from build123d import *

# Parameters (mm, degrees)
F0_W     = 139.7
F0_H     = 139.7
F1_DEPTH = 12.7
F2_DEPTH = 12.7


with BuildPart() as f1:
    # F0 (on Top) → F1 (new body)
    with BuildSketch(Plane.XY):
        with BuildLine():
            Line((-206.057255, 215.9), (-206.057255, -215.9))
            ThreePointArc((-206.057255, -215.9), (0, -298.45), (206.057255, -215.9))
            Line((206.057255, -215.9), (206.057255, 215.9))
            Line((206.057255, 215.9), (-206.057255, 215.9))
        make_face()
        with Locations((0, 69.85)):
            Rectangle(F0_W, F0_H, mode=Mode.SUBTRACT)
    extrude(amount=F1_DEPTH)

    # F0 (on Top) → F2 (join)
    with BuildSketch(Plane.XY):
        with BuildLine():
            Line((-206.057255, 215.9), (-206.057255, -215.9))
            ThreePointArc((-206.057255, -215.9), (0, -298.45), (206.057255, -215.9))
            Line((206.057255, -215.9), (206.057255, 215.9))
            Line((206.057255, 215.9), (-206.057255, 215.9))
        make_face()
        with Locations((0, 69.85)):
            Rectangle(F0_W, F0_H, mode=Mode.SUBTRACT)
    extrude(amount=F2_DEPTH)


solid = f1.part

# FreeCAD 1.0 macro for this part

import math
import FreeCAD as App
import Part
import Sketcher

V = App.Vector
Q = App.Units.Quantity


def add_polygon(sketch, points):
    """Adds a closed chain of lines whose ends are joined by coincident constraints."""
    first, n = sketch.GeometryCount, len(points)
    for a, b in zip(points, points[1:] + points[:1]):
        sketch.addGeometry(Part.LineSegment(App.Vector(*a, 0), App.Vector(*b, 0)), False)
    for i in range(n):
        sketch.addConstraint(Sketcher.Constraint("Coincident", first + i, 2, first + (i + 1) % n, 1))

doc = App.newDocument("Part")
body = doc.addObject("PartDesign::Body", "Body")

# Sketch on XY plane
sketch1 = doc.addObject("Sketcher::SketchObject", "Sketch")
body.addObject(sketch1)
sketch1.AttachmentSupport = (doc.XY_Plane, [""])
sketch1.MapMode = "FlatFace"
sketch1.addGeometry(Part.LineSegment(V(-206, 216, 0), V(-206, -216, 0)), False)  # 0
sketch1.addGeometry(Part.ArcOfCircle(Part.Circle(V(0, 0, 0), V(0, 0, 1), 298), math.radians(-134), math.radians(-46)), False)  # 1
sketch1.addGeometry(Part.LineSegment(V(206, -216, 0), V(206, 216, 0)), False)  # 2
sketch1.addGeometry(Part.LineSegment(V(206, 216, 0), V(-206, 216, 0)), False)  # 3
add_polygon(sketch1, [(70, 0), (-70, 0), (-70, 140), (70, 140)])  # lines 4-7
sketch1.addConstraint([
    Sketcher.Constraint("Coincident", 0, 2, 1, 1),
    Sketcher.Constraint("Coincident", 1, 2, 2, 1),
    Sketcher.Constraint("Coincident", 2, 2, 3, 1),
    Sketcher.Constraint("Coincident", 3, 2, 0, 1),
    Sketcher.Constraint("Vertical", 0),
    Sketcher.Constraint("Vertical", 2),
    Sketcher.Constraint("Horizontal", 3),
    Sketcher.Constraint("Horizontal", 4),
    Sketcher.Constraint("Vertical", 5),
    Sketcher.Constraint("Horizontal", 6),
    Sketcher.Constraint("Vertical", 7),
    Sketcher.Constraint("Coincident", 1, 3, -1, 1),
    Sketcher.Constraint("Symmetric", 0, 2, 2, 2, -1, 1),
    Sketcher.Constraint("Symmetric", 4, 2, 7, 2, -1, 1),
    Sketcher.Constraint("Equal", 6, 5),
    Sketcher.Constraint("DistanceY", 0, 2, 0, 1, Q("17 in")),
    Sketcher.Constraint("Radius", 1, Q("11.75 in")),
    Sketcher.Constraint("DistanceX", 4, 2, 4, 1, Q("5.5 in")),
])
pad1 = doc.addObject("PartDesign::Pad", "Pad")
body.addObject(pad1)
pad1.Profile = sketch1
pad1.Length = Q("0.5 in")

# Sketch on XY plane
sketch2 = doc.addObject("Sketcher::SketchObject", "Sketch001")
body.addObject(sketch2)
sketch2.AttachmentSupport = (doc.XY_Plane, [""])
sketch2.MapMode = "FlatFace"
sketch2.addGeometry(Part.LineSegment(V(-206, 216, 0), V(-206, -216, 0)), False)  # 0
sketch2.addGeometry(Part.ArcOfCircle(Part.Circle(V(0, 0, 0), V(0, 0, 1), 298), math.radians(-134), math.radians(-46)), False)  # 1
sketch2.addGeometry(Part.LineSegment(V(206, -216, 0), V(206, 216, 0)), False)  # 2
sketch2.addGeometry(Part.LineSegment(V(206, 216, 0), V(-206, 216, 0)), False)  # 3
add_polygon(sketch2, [(70, 0), (-70, 0), (-70, 140), (70, 140)])  # lines 4-7
sketch2.addConstraint([
    Sketcher.Constraint("Coincident", 0, 2, 1, 1),
    Sketcher.Constraint("Coincident", 1, 2, 2, 1),
    Sketcher.Constraint("Coincident", 2, 2, 3, 1),
    Sketcher.Constraint("Coincident", 3, 2, 0, 1),
    Sketcher.Constraint("Vertical", 0),
    Sketcher.Constraint("Vertical", 2),
    Sketcher.Constraint("Horizontal", 3),
    Sketcher.Constraint("Horizontal", 4),
    Sketcher.Constraint("Vertical", 5),
    Sketcher.Constraint("Horizontal", 6),
    Sketcher.Constraint("Vertical", 7),
    Sketcher.Constraint("Coincident", 1, 3, -1, 1),
    Sketcher.Constraint("Symmetric", 0, 2, 2, 2, -1, 1),
    Sketcher.Constraint("Symmetric", 4, 2, 7, 2, -1, 1),
    Sketcher.Constraint("Equal", 6, 5),
    Sketcher.Constraint("DistanceY", 0, 2, 0, 1, Q("17 in")),
    Sketcher.Constraint("Radius", 1, Q("11.75 in")),
    Sketcher.Constraint("DistanceX", 4, 2, 4, 1, Q("5.5 in")),
])
pad2 = doc.addObject("PartDesign::Pad", "Pad001")
body.addObject(pad2)
pad2.Profile = sketch2
pad2.Length = Q("0.5 in")

doc.recompute()
